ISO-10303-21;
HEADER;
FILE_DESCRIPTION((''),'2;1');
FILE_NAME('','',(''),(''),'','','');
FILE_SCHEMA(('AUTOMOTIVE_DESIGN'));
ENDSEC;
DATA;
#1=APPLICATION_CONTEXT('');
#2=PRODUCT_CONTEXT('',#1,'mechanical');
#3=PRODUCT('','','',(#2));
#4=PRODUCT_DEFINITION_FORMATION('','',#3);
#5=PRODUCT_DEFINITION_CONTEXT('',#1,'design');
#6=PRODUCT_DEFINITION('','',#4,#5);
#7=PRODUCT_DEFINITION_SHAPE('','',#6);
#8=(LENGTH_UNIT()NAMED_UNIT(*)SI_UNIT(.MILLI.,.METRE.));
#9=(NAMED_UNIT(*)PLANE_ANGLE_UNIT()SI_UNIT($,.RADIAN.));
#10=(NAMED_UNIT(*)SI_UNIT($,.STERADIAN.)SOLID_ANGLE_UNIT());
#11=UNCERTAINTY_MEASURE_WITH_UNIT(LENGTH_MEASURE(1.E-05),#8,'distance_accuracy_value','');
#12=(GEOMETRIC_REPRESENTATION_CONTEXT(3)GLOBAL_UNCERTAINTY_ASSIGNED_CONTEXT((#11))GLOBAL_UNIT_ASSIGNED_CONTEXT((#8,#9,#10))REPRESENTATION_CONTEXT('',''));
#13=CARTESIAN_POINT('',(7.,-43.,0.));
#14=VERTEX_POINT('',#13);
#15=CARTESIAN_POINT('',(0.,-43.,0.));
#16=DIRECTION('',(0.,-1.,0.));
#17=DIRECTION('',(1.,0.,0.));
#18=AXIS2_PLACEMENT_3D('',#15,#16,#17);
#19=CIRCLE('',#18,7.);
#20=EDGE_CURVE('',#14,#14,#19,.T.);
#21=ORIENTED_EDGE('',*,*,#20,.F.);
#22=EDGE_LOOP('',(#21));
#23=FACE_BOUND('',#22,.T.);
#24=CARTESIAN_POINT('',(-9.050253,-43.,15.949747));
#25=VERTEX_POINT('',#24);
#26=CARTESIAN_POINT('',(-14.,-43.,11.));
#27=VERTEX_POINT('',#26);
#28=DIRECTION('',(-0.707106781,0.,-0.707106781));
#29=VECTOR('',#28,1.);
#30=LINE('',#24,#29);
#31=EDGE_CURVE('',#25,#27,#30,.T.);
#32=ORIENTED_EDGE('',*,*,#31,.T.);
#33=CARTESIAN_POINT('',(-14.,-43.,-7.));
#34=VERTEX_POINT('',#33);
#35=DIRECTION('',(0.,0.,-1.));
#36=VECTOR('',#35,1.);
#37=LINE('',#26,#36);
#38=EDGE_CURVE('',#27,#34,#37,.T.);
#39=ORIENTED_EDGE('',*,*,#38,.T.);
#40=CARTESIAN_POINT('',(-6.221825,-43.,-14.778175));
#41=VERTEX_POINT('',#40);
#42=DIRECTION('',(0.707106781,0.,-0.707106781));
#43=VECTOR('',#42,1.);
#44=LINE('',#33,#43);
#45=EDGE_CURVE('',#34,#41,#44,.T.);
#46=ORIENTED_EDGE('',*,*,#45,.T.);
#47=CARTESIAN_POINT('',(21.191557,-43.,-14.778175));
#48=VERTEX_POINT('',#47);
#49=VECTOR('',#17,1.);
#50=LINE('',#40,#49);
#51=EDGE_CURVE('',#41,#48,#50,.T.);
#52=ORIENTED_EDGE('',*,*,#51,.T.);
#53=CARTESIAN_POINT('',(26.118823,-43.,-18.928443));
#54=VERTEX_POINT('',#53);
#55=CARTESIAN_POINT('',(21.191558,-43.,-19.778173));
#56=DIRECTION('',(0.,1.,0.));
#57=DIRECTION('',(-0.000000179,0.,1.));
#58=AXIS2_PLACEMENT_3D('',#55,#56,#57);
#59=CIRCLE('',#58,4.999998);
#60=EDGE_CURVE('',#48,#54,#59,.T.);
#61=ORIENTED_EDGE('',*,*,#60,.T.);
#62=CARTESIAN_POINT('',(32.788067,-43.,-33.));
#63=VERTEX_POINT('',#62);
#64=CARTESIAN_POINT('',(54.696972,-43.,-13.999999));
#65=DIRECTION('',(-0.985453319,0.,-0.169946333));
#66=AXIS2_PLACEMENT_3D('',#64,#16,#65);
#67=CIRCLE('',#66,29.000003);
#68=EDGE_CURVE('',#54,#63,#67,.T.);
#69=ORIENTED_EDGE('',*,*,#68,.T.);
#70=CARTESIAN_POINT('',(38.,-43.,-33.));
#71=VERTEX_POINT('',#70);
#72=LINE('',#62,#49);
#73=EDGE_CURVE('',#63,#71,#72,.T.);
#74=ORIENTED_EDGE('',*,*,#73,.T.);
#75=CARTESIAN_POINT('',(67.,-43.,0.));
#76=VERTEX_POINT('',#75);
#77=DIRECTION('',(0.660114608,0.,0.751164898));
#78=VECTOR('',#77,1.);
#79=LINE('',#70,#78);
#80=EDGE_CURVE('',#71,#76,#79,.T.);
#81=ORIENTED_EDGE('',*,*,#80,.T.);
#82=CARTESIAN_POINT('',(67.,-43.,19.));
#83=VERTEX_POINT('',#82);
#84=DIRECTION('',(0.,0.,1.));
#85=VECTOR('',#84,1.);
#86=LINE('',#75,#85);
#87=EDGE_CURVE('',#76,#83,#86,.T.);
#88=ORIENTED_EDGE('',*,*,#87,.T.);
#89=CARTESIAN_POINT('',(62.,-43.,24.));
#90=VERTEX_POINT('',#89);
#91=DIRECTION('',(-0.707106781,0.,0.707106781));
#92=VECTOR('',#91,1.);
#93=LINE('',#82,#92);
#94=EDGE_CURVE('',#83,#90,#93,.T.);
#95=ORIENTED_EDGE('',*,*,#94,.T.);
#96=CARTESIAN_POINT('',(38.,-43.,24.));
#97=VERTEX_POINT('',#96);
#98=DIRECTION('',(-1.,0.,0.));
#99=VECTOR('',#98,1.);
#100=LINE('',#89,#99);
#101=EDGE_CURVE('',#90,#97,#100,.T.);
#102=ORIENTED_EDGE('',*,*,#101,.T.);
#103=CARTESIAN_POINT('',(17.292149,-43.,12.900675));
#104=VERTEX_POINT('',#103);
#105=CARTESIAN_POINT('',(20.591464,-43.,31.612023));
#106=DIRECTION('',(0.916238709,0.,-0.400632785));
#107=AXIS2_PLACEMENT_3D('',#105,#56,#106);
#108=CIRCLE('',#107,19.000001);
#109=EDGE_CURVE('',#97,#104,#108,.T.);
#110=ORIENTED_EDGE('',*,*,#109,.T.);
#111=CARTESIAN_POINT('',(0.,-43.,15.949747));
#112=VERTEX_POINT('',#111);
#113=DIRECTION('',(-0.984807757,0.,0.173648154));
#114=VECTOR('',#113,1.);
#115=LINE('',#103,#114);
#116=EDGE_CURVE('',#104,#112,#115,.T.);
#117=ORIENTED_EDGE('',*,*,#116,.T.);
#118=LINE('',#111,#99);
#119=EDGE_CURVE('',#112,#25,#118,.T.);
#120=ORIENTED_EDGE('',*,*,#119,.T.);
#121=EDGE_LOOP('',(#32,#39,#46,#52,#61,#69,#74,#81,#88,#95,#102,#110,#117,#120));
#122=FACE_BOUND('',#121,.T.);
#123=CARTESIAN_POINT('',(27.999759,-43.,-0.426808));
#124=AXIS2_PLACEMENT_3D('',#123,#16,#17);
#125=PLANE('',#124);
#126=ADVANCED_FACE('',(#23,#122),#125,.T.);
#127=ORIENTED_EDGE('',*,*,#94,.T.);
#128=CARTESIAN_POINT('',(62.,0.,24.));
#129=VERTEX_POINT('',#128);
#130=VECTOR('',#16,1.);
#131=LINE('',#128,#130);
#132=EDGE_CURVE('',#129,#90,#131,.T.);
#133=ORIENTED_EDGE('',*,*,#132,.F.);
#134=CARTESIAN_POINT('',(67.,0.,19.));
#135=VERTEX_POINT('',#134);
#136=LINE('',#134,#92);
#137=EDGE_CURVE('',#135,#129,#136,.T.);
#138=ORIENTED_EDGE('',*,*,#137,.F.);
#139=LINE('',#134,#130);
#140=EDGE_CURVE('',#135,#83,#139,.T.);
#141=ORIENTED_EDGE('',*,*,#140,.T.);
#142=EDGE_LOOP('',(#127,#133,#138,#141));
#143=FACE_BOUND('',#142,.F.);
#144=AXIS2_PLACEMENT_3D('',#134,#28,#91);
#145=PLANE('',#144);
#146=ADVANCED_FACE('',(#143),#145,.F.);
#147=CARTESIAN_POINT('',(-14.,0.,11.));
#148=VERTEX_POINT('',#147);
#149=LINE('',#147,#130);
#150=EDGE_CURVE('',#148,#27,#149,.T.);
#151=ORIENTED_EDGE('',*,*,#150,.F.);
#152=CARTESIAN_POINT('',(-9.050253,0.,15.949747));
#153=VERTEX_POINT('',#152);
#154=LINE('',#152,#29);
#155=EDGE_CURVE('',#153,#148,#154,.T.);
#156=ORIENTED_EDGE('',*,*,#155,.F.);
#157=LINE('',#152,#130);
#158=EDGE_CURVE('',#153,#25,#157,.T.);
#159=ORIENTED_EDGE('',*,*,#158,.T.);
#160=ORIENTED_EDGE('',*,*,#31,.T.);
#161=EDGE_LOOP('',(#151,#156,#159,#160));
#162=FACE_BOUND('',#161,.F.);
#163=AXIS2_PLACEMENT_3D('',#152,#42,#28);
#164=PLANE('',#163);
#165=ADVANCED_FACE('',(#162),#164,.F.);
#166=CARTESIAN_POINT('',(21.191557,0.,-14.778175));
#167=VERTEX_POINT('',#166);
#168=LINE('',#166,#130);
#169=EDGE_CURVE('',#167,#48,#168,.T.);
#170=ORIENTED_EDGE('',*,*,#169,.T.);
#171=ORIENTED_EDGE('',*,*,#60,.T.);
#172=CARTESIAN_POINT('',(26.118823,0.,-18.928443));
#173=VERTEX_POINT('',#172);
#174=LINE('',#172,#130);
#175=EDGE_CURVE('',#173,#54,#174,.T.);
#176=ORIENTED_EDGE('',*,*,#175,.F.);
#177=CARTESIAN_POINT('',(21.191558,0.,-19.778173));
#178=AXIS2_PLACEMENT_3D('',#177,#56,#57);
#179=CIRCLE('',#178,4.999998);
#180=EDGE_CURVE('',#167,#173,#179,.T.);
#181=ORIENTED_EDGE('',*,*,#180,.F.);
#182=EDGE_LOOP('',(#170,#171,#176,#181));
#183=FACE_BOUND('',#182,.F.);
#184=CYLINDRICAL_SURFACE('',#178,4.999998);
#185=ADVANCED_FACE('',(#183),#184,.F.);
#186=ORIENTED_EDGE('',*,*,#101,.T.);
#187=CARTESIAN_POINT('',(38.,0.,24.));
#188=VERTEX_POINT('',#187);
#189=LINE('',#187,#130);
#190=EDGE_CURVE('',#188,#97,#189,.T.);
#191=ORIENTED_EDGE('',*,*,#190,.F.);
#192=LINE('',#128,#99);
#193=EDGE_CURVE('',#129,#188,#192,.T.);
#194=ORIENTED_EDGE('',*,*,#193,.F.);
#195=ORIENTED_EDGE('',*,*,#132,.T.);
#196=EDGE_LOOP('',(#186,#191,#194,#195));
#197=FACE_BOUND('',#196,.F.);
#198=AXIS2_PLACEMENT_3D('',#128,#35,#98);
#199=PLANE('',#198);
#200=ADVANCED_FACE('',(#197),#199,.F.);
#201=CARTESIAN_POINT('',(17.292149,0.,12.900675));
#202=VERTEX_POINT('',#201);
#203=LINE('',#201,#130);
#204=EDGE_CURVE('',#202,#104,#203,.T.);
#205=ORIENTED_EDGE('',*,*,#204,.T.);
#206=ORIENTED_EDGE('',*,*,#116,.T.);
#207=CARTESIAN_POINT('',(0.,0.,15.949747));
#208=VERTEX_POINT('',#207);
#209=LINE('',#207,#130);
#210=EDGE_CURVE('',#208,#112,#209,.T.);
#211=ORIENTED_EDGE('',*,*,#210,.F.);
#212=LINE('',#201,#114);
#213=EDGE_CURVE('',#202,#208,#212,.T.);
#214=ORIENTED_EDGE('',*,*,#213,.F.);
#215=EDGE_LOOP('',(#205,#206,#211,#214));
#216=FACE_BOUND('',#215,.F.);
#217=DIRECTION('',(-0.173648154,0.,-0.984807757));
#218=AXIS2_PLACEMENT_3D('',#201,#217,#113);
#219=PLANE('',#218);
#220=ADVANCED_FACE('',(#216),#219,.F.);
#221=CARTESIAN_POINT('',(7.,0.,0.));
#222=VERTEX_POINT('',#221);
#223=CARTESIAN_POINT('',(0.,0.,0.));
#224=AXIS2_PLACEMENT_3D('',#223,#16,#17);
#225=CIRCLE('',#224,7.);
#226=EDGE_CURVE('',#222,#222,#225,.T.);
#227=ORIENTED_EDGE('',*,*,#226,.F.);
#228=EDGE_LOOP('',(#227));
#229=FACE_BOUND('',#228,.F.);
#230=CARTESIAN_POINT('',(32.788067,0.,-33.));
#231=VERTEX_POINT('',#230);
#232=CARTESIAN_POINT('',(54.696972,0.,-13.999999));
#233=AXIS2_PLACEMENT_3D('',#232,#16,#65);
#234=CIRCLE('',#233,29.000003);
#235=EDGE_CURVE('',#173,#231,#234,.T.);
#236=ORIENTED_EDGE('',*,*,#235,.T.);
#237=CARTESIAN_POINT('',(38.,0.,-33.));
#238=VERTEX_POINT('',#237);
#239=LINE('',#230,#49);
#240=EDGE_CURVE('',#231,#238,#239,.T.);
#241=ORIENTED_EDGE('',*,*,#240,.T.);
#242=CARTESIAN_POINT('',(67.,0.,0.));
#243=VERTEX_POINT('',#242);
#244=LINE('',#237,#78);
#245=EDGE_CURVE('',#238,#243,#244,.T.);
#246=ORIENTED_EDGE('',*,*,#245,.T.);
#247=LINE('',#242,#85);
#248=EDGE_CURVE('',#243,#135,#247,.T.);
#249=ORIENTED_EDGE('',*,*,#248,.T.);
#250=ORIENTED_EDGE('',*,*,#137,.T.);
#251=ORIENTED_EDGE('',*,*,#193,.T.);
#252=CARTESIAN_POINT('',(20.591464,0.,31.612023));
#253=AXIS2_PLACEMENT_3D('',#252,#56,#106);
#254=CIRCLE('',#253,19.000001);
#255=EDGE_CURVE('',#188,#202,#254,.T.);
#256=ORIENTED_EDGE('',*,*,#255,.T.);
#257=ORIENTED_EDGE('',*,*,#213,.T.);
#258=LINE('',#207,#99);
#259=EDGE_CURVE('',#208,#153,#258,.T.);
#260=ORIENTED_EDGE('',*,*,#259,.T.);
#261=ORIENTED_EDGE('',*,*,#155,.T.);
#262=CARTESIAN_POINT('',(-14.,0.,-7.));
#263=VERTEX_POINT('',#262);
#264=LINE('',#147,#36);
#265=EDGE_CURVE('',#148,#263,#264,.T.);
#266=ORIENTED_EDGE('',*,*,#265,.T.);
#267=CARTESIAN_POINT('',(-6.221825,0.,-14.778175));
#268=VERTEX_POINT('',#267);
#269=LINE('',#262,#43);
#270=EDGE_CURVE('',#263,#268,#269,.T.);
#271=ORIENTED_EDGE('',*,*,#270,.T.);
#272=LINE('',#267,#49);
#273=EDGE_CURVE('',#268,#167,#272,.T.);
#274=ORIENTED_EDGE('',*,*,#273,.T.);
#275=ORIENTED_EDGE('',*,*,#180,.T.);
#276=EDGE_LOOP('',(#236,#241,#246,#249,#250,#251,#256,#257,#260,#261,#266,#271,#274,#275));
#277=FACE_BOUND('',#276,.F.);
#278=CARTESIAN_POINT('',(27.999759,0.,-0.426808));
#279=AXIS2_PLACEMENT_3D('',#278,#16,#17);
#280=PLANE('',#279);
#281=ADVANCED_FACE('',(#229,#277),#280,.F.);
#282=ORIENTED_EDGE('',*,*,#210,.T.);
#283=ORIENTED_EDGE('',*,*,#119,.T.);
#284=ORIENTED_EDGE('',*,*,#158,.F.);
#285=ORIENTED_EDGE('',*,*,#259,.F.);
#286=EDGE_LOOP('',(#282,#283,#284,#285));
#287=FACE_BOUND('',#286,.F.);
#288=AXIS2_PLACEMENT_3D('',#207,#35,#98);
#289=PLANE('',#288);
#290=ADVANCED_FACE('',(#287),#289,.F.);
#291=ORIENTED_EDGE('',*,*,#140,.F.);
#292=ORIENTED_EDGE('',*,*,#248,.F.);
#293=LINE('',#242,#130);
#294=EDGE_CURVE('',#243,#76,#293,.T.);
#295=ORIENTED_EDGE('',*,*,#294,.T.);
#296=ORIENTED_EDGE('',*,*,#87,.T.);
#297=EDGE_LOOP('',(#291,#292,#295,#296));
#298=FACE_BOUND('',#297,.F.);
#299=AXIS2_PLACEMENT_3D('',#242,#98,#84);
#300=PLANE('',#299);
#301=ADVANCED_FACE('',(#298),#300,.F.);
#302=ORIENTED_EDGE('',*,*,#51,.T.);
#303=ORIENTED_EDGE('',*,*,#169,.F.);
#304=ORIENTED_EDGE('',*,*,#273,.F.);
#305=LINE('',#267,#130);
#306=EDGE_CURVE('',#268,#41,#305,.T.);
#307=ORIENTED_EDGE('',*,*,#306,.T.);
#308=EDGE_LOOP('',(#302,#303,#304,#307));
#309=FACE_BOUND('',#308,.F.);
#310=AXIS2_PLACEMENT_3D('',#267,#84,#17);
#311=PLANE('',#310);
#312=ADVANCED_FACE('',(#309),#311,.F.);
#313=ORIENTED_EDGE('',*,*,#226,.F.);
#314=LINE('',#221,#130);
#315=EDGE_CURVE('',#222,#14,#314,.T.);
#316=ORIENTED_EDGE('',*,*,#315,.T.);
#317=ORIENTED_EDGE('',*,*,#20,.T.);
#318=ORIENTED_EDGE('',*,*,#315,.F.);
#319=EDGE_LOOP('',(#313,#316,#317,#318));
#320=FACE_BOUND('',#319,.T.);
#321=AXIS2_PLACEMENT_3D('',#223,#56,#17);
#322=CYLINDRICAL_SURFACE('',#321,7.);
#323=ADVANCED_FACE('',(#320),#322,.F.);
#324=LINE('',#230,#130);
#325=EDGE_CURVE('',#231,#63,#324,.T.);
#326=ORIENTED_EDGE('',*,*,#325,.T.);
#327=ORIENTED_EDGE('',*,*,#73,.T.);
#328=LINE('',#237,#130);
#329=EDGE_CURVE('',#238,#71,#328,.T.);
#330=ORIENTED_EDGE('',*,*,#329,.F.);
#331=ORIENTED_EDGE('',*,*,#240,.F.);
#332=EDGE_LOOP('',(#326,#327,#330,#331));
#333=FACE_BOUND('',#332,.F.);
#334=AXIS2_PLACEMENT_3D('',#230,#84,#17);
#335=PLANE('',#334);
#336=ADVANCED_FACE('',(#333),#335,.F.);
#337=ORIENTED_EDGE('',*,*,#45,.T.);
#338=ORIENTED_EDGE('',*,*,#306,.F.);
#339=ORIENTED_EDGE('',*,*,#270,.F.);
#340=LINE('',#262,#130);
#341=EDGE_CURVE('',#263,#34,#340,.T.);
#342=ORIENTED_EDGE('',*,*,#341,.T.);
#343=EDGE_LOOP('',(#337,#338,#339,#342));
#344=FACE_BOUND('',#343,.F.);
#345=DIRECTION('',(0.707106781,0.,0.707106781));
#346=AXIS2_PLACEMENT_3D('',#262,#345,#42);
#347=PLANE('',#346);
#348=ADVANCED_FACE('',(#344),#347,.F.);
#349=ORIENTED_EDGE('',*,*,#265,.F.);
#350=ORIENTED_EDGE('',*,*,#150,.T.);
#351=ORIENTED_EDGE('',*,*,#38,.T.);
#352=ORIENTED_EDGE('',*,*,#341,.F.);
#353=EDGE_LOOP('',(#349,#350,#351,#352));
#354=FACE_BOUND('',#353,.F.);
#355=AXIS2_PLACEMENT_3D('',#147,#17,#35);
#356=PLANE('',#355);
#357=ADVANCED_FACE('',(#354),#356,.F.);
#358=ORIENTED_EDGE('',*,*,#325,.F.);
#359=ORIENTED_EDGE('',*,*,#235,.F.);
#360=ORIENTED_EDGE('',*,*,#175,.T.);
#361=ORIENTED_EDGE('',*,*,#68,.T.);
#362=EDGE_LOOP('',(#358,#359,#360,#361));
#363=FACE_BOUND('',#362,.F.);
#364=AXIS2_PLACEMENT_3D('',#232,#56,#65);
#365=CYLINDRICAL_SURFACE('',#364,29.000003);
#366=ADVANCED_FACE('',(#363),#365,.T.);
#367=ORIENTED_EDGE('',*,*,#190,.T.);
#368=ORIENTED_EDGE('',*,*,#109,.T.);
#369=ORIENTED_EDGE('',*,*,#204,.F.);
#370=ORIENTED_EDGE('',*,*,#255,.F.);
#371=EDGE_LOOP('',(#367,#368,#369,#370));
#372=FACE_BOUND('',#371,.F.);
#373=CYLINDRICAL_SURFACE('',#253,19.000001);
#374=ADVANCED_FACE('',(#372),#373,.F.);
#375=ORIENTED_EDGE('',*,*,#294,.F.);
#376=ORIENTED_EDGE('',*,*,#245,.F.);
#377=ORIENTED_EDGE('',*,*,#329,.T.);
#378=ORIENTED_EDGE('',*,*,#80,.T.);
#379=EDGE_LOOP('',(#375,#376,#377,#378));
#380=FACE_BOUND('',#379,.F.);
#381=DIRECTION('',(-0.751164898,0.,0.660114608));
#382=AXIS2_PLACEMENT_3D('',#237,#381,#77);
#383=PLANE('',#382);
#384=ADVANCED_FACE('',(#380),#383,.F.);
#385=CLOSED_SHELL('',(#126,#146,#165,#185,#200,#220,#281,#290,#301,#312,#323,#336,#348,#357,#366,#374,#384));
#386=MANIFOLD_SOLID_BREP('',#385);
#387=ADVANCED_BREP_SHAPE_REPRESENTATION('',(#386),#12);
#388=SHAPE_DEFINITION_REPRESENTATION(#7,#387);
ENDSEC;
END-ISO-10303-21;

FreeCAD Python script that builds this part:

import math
import FreeCAD as App
import Part
import Sketcher
from FreeCAD import Vector
Q = App.Units.Quantity

doc = App.newDocument("Part")
params = doc.addObject("Spreadsheet::Sheet", "Params")
for row, (alias, value) in enumerate([
    ("sketch1_diameter", "14 mm"),
    ("sketch1_radius", "4.999998 mm"),
    ("sketch1_radius2", "19.000001 mm"),
    ("sketch1_width", "24 mm"),
    ("sketch1_height", "18 mm"),
    ("pad1_length", "43 mm"),
], start=1):
    params.set(f"A{row}", alias)
    params.set(f"B{row}", "=" + value)
    params.setAlias(f"B{row}", alias)

body = doc.addObject("PartDesign::Body", "Body")

# Sketch on XZ plane
sketch1 = body.newObject("Sketcher::SketchObject", "Sketch")
sketch1.AttachmentSupport = (doc.getObject("XZ_Plane"), [""])
sketch1.MapMode = "FlatFace"
sketch1.addGeometry([
    Part.LineSegment(Vector(-14, 11, 0), Vector(-14, -7, 0)),  # 0
    Part.LineSegment(Vector(-14, -7, 0), Vector(-6.2, -14.8, 0)),  # 1
    Part.LineSegment(Vector(-6.2, -14.8, 0), Vector(21.2, -14.8, 0)),  # 2
    Part.ArcOfCircle(Part.Circle(Vector(21.2, -19.8, 0), Vector(0, 0, 1), 5), math.radians(10), math.radians(90)),  # 3
    Part.ArcOfCircle(Part.Circle(Vector(54.7, -14, 0), Vector(0, 0, 1), 29), math.radians(-170), math.radians(-139)),  # 4
    Part.LineSegment(Vector(32.8, -33, 0), Vector(38, -33, 0)),  # 5
    Part.LineSegment(Vector(38, -33, 0), Vector(67, 0, 0)),  # 6
    Part.LineSegment(Vector(67, 0, 0), Vector(67, 19, 0)),  # 7
    Part.LineSegment(Vector(67, 19, 0), Vector(62, 24, 0)),  # 8
    Part.LineSegment(Vector(62, 24, 0), Vector(38, 24, 0)),  # 9
    Part.ArcOfCircle(Part.Circle(Vector(20.6, 31.6, 0), Vector(0, 0, 1), 19), math.radians(-100), math.radians(-24)),  # 10
    Part.LineSegment(Vector(17.3, 12.9, 0), Vector(0, 15.9, 0)),  # 11
    Part.LineSegment(Vector(0, 15.9, 0), Vector(-9.1, 15.9, 0)),  # 12
    Part.LineSegment(Vector(-9.1, 15.9, 0), Vector(-14, 11, 0)),  # 13
    Part.Circle(Vector(0, 0, 0), Vector(0, 0, 1), 7),  # 14
], False)
sketch1.addConstraint([
    Sketcher.Constraint("Coincident", 0, 2, 1, 1),
    Sketcher.Constraint("Coincident", 1, 2, 2, 1),
    Sketcher.Constraint("Tangent", 2, 2, 3, 2),
    Sketcher.Constraint("Tangent", 3, 1, 4, 1),
    Sketcher.Constraint("Coincident", 4, 2, 5, 1),
    Sketcher.Constraint("Coincident", 5, 2, 6, 1),
    Sketcher.Constraint("Coincident", 6, 2, 7, 1),
    Sketcher.Constraint("Coincident", 7, 2, 8, 1),
    Sketcher.Constraint("Coincident", 8, 2, 9, 1),
    Sketcher.Constraint("Coincident", 9, 2, 10, 2),
    Sketcher.Constraint("Tangent", 10, 1, 11, 1),
    Sketcher.Constraint("Coincident", 11, 2, 12, 1),
    Sketcher.Constraint("Coincident", 12, 2, 13, 1),
    Sketcher.Constraint("Coincident", 13, 2, 0, 1),
    Sketcher.Constraint("Vertical", 0),
    Sketcher.Constraint("Horizontal", 2),
    Sketcher.Constraint("Horizontal", 5),
    Sketcher.Constraint("Vertical", 7),
    Sketcher.Constraint("Horizontal", 9),
    Sketcher.Constraint("Horizontal", 12),
    Sketcher.Constraint("Coincident", 14, 3, -1, 1),
    Sketcher.Constraint("PointOnObject", 6, 2, -1),
    Sketcher.Constraint("PointOnObject", 11, 2, -2),
    Sketcher.Constraint("Parallel", 1, 8),
    Sketcher.Constraint("Perpendicular", 8, 13),
    Sketcher.Constraint("Vertical", 5, 2, 9, 2),
    Sketcher.Constraint("Diameter", 14, 14.0),
    Sketcher.Constraint("Radius", 3, 4.999998),
    Sketcher.Constraint("Radius", 10, 19.000001),
    Sketcher.Constraint("DistanceX", 9, 2, 9, 1, 24.0),
    Sketcher.Constraint("DistanceY", 0, 2, 0, 1, 18.0),
    Sketcher.Constraint("DistanceY", 7, 1, 7, 2, 19.0),
    Sketcher.Constraint("Angle", 1, Q("-45 deg")),
    Sketcher.Constraint("Angle", 11, Q("170.000001 deg")),
    Sketcher.Constraint("Distance", 1, 11.000001),
    Sketcher.Constraint("Distance", 13, 6.999999),
    Sketcher.Constraint("DistanceY", 4, 3, -1, 1, 13.999999),
    Sketcher.Constraint("DistanceX", 0, 2, -1, 1, 14.0),
    Sketcher.Constraint("DistanceY", 0, 2, -1, 1, 7.0),
    Sketcher.Constraint("DistanceY", 4, 2, -1, 1, 33.0),
    Sketcher.Constraint("DistanceX", -1, 1, 5, 2, 38.0),
    Sketcher.Constraint("DistanceX", -1, 1, 6, 2, 67.0),
    Sketcher.Constraint("Radius", 4, 29.000003),
    Sketcher.Constraint("DistanceX", 2, 1, 2, 2, 27.413382),
])
sketch1.setExpression("Constraints[26]", "Params.sketch1_diameter")
sketch1.setExpression("Constraints[27]", "Params.sketch1_radius")
sketch1.setExpression("Constraints[28]", "Params.sketch1_radius2")
sketch1.setExpression("Constraints[29]", "Params.sketch1_width")
sketch1.setExpression("Constraints[30]", "Params.sketch1_height")
pad1 = body.newObject("PartDesign::Pad", "Pad")
pad1.Profile = sketch1
pad1.setExpression("Length", "Params.pad1_length")

doc.recompute()
